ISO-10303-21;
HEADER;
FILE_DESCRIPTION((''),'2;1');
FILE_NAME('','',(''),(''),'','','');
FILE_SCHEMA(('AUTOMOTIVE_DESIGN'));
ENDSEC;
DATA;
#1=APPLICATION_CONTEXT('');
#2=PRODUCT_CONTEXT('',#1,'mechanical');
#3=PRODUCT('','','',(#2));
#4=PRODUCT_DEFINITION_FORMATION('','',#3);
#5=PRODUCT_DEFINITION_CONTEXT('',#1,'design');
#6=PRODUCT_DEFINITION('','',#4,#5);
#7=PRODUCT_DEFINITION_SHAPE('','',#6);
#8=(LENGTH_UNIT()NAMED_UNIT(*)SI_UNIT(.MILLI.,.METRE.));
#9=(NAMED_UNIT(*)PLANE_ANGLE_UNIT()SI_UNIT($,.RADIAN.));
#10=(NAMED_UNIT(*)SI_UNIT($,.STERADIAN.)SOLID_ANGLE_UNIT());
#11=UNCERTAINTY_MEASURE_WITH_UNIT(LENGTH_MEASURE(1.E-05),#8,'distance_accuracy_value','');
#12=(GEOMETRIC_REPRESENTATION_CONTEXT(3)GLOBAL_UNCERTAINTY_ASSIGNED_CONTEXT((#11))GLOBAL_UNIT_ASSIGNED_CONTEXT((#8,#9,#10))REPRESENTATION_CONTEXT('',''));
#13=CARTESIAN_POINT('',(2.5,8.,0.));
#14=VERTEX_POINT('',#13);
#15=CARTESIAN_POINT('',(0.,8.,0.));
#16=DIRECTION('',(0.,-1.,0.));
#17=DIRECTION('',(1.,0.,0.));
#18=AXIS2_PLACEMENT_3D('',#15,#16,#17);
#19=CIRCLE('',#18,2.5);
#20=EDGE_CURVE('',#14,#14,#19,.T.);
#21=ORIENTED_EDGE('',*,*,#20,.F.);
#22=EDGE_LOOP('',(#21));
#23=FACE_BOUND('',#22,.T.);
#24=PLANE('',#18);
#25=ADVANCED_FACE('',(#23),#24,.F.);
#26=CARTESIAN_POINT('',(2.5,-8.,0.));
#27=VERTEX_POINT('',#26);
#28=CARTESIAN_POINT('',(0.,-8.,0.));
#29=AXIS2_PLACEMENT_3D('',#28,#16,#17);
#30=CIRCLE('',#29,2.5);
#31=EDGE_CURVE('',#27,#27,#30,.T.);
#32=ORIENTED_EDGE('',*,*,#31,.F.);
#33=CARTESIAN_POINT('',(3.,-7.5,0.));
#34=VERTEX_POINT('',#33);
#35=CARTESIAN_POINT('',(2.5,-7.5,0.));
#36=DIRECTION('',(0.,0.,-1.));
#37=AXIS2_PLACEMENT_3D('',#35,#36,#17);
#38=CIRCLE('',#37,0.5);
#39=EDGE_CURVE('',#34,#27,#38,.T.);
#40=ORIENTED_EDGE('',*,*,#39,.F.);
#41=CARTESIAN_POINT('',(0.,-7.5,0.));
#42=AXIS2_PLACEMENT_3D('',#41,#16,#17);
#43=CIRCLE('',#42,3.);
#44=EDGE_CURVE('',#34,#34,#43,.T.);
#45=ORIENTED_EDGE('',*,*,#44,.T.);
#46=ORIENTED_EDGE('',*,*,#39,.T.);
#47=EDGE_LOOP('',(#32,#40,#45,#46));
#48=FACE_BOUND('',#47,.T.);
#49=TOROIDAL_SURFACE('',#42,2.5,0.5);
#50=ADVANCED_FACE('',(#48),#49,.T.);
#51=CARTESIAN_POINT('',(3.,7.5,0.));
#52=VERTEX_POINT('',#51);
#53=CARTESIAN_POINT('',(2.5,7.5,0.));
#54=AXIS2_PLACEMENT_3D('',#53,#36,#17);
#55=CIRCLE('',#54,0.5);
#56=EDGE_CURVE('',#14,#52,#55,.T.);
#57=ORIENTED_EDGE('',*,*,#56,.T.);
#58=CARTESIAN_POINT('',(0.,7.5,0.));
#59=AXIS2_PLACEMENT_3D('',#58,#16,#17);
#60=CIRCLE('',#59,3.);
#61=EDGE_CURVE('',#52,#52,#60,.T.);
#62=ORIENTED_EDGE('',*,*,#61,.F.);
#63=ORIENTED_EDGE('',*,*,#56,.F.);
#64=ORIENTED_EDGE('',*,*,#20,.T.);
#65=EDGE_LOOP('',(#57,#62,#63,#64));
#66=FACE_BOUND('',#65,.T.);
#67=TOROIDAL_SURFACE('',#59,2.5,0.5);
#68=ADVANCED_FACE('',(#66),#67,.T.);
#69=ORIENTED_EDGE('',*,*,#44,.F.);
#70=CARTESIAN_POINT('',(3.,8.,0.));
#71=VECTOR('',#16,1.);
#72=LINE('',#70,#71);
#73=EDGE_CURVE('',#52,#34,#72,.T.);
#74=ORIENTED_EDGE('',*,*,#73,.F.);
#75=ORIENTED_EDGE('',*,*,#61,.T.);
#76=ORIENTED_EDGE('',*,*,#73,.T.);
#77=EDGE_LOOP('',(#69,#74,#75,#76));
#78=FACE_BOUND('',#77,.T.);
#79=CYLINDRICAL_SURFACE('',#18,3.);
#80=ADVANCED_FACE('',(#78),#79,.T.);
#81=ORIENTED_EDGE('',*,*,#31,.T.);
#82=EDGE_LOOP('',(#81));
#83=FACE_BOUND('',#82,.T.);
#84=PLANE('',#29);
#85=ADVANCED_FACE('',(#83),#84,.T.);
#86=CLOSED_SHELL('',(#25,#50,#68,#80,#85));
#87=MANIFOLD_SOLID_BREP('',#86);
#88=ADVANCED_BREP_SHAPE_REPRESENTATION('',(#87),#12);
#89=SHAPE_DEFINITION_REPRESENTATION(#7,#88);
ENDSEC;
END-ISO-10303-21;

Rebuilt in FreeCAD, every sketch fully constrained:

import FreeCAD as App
import Part
import Sketcher

V = App.Vector


def edges_at(feature, points):
    """Names of the edges that pass closest to the given points."""
    edges = feature.Shape.Edges
    near = lambda p: min(range(len(edges)), key=lambda i: edges[i].distToShape(Part.Vertex(*p))[0])
    return sorted({f"Edge{near(p) + 1}" for p in points})

doc = App.newDocument("Part")
params = doc.addObject("Spreadsheet::Sheet", "Params")
for row, (alias, value) in enumerate([
    ("sketch1_height", "16 mm"),
    ("sketch1_width", "3 mm"),
    ("revolution_angle", "360 deg"),
    ("fillet_radius", "0.5 mm"),
], start=1):
    params.set(f"A{row}", alias)
    params.set(f"B{row}", "=" + value)
    params.setAlias(f"B{row}", alias)

body = doc.addObject("PartDesign::Body", "Body")

# Sketch on XY plane
sketch1 = doc.addObject("Sketcher::SketchObject", "Sketch")
body.addObject(sketch1)
sketch1.AttachmentSupport = (doc.XY_Plane, [""])
sketch1.MapMode = "FlatFace"
sketch1.addGeometry([
    Part.LineSegment(V(3, 8, 0), V(0, 8, 0)),
    Part.LineSegment(V(0, 8, 0), V(0, -8, 0)),
    Part.LineSegment(V(0, -8, 0), V(3, -8, 0)),
    Part.LineSegment(V(3, -8, 0), V(3, 8, 0)),
], False)
sketch1.addConstraint([
    Sketcher.Constraint("Coincident", 0, 2, 1, 1),
    Sketcher.Constraint("Coincident", 1, 2, 2, 1),
    Sketcher.Constraint("Coincident", 2, 2, 3, 1),
    Sketcher.Constraint("Coincident", 3, 2, 0, 1),
    Sketcher.Constraint("Horizontal", 0),
    Sketcher.Constraint("Vertical", 1),
    Sketcher.Constraint("Horizontal", 2),
    Sketcher.Constraint("Vertical", 3),
    Sketcher.Constraint("Symmetric", 0, 2, 1, 2, -1, 1),
    Sketcher.Constraint("DistanceY", 1, 2, 1, 1, 16.0),
    Sketcher.Constraint("DistanceX", 0, 2, 0, 1, 3.0),
])
sketch1.setExpression("Constraints[9]", "Params.sketch1_height")
sketch1.setExpression("Constraints[10]", "Params.sketch1_width")
revolution = doc.addObject("PartDesign::Revolution", "Revolution")
body.addObject(revolution)
revolution.Profile = sketch1
revolution.ReferenceAxis = (sketch1, ["V_Axis"])
revolution.setExpression("Angle", "Params.revolution_angle")
doc.recompute()

fillet = doc.addObject("PartDesign::Fillet", "Fillet")
body.addObject(fillet)
fillet.Base = (revolution, edges_at(revolution, [(-3, -8, 0), (-3, 8, 0)]))
fillet.setExpression("Radius", "Params.fillet_radius")

doc.recompute()
